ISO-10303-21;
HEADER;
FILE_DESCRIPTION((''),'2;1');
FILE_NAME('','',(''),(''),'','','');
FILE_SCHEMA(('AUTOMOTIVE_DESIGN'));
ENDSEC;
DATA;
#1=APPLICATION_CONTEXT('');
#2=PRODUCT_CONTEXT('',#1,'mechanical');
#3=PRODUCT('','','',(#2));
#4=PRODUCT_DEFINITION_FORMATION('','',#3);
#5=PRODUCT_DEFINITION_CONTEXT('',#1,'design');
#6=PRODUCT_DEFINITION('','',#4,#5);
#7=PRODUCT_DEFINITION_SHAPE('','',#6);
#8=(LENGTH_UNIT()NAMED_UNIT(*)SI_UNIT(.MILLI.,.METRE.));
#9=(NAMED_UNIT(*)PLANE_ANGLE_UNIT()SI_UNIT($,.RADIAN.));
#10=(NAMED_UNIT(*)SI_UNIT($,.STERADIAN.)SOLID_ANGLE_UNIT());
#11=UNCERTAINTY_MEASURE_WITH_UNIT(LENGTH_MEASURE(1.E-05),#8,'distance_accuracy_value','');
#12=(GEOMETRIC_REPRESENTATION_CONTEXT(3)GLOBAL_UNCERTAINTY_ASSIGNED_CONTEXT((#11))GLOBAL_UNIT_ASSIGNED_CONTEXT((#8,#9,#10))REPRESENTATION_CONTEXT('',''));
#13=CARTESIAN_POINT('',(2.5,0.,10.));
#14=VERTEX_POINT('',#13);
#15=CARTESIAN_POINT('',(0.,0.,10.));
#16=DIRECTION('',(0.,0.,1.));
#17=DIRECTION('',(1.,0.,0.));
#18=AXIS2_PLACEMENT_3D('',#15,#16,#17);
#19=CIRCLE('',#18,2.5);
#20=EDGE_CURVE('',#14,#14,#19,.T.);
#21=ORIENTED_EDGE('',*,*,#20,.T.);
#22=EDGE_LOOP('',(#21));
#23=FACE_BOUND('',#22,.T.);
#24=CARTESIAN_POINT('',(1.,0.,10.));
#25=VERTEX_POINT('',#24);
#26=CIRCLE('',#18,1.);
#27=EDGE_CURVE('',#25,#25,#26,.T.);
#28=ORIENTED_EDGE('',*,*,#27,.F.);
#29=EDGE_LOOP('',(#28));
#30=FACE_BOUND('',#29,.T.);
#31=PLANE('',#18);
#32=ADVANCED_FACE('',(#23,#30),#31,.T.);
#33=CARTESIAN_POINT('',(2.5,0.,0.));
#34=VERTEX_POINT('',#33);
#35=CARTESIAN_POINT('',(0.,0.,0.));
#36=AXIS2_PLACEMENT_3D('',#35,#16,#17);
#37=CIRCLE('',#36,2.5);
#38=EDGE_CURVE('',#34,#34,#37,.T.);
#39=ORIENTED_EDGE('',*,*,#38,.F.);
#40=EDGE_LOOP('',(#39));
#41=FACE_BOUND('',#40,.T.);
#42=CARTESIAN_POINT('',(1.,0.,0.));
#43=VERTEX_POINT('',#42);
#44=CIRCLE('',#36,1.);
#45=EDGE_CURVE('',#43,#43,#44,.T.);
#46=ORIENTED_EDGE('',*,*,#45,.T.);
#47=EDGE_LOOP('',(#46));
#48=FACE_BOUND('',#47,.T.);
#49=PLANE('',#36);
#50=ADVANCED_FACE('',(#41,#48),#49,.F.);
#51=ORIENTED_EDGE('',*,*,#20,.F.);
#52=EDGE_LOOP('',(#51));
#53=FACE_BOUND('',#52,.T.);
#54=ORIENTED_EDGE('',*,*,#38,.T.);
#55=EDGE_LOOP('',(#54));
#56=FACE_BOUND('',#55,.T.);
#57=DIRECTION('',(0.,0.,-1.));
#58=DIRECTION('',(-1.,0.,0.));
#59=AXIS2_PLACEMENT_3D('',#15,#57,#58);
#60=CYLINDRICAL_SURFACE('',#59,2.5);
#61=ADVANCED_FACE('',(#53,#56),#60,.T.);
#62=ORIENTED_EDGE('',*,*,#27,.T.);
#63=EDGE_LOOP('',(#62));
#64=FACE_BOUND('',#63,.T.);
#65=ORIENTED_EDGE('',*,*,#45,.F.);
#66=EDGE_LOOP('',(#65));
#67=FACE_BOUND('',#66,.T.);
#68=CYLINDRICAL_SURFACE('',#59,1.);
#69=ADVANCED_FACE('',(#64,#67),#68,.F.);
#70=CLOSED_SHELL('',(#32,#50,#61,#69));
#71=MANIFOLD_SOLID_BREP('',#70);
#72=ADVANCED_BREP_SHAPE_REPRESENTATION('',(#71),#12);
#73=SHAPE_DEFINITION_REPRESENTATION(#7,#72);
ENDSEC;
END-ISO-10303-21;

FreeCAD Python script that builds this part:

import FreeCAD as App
import Part
import Sketcher
from FreeCAD import Vector

doc = App.newDocument("Part")
body = doc.addObject("PartDesign::Body", "Body")

# Sketch on XY plane
sketch1 = body.newObject("Sketcher::SketchObject", "Sketch")
sketch1.AttachmentSupport = (doc.getObject("XY_Plane"), [""])
sketch1.MapMode = "FlatFace"
sketch1.addGeometry([
    Part.Circle(Vector(0, 0, 0), Vector(0, 0, 1), 2.5),
    Part.Circle(Vector(0, 0, 0), Vector(0, 0, 1), 1),
], False)
sketch1.addConstraint([
    Sketcher.Constraint("Coincident", 0, 3, -1, 1),
    Sketcher.Constraint("Coincident", 1, 3, -1, 1),
    Sketcher.Constraint("Diameter", 0, 5.0),
    Sketcher.Constraint("Diameter", 1, 2.0),
])
pad1 = body.newObject("PartDesign::Pad", "Pad")
pad1.Profile = sketch1
pad1.Length = 10

doc.recompute()
